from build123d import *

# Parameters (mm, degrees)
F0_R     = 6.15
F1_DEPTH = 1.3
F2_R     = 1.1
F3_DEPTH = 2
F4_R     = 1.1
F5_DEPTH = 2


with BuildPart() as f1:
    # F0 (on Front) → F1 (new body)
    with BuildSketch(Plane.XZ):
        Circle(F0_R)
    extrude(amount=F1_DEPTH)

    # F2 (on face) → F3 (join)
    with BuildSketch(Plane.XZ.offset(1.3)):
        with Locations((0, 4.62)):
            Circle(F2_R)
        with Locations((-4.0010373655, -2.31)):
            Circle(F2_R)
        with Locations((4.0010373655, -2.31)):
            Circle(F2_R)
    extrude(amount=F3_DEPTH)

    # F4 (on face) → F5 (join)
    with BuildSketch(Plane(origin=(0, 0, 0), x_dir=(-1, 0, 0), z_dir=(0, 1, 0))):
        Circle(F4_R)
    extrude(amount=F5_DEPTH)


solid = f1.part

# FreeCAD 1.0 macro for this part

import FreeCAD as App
import Part
import Sketcher

doc = App.newDocument("Part")
body = doc.addObject("PartDesign::Body", "Body")

# Sketch on XZ plane
sketch1 = doc.addObject("Sketcher::SketchObject", "Sketch")
body.addObject(sketch1)
sketch1.AttachmentSupport = (doc.XZ_Plane, [""])
sketch1.MapMode = "FlatFace"
sketch1.addGeometry(Part.Circle(App.Vector(0, 0, 0), App.Vector(0, 0, 1), 6), False)
sketch1.addConstraint([
    Sketcher.Constraint("Coincident", 0, 3, -1, 1),
    Sketcher.Constraint("Diameter", 0, 12.3),
])
pad1 = doc.addObject("PartDesign::Pad", "Pad")
body.addObject(pad1)
pad1.Profile = sketch1
pad1.Length = 1.3

# Sketch on XZ plane
sketch2 = doc.addObject("Sketcher::SketchObject", "Sketch001")
body.addObject(sketch2)
sketch2.AttachmentSupport = (doc.XZ_Plane, [""])
sketch2.MapMode = "FlatFace"
sketch2.AttachmentOffset = App.Placement(App.Vector(0, 0, 1.3), App.Rotation())
sketch2.addGeometry([
    Part.Circle(App.Vector(0, 4.6, 0), App.Vector(0, 0, 1), 1.1),
    Part.Circle(App.Vector(-4, -2.3, 0), App.Vector(0, 0, 1), 1.1),
    Part.Circle(App.Vector(4, -2.3, 0), App.Vector(0, 0, 1), 1.1),
], False)
sketch2.addConstraint([
    Sketcher.Constraint("Equal", 0, 1),
    Sketcher.Constraint("Equal", 1, 2),
    Sketcher.Constraint("Symmetric", 1, 3, 2, 3, -2),
    Sketcher.Constraint("PointOnObject", 0, 3, -2),
    Sketcher.Constraint("Diameter", 0, 2.2),
    Sketcher.Constraint("DistanceY", -1, 1, 0, 3, 4.62),
    Sketcher.Constraint("DistanceY", 1, 3, -1, 1, 2.31),
    Sketcher.Constraint("DistanceX", 1, 3, -1, 1, 4.001037),
])
pad2 = doc.addObject("PartDesign::Pad", "Pad001")
body.addObject(pad2)
pad2.Profile = sketch2
pad2.Length = 2

# Sketch on XZ plane
sketch3 = doc.addObject("Sketcher::SketchObject", "Sketch002")
body.addObject(sketch3)
sketch3.AttachmentSupport = (doc.XZ_Plane, [""])
sketch3.MapMode = "FlatFace"
sketch3.addGeometry(Part.Circle(App.Vector(0, 0, 0), App.Vector(0, 0, 1), 1.1), False)
sketch3.addConstraint([
    Sketcher.Constraint("Coincident", 0, 3, -1, 1),
    Sketcher.Constraint("Diameter", 0, 2.2),
])
pad3 = doc.addObject("PartDesign::Pad", "Pad002")
body.addObject(pad3)
pad3.Profile = sketch3
pad3.Length = 2
pad3.Reversed = True

doc.recompute()
